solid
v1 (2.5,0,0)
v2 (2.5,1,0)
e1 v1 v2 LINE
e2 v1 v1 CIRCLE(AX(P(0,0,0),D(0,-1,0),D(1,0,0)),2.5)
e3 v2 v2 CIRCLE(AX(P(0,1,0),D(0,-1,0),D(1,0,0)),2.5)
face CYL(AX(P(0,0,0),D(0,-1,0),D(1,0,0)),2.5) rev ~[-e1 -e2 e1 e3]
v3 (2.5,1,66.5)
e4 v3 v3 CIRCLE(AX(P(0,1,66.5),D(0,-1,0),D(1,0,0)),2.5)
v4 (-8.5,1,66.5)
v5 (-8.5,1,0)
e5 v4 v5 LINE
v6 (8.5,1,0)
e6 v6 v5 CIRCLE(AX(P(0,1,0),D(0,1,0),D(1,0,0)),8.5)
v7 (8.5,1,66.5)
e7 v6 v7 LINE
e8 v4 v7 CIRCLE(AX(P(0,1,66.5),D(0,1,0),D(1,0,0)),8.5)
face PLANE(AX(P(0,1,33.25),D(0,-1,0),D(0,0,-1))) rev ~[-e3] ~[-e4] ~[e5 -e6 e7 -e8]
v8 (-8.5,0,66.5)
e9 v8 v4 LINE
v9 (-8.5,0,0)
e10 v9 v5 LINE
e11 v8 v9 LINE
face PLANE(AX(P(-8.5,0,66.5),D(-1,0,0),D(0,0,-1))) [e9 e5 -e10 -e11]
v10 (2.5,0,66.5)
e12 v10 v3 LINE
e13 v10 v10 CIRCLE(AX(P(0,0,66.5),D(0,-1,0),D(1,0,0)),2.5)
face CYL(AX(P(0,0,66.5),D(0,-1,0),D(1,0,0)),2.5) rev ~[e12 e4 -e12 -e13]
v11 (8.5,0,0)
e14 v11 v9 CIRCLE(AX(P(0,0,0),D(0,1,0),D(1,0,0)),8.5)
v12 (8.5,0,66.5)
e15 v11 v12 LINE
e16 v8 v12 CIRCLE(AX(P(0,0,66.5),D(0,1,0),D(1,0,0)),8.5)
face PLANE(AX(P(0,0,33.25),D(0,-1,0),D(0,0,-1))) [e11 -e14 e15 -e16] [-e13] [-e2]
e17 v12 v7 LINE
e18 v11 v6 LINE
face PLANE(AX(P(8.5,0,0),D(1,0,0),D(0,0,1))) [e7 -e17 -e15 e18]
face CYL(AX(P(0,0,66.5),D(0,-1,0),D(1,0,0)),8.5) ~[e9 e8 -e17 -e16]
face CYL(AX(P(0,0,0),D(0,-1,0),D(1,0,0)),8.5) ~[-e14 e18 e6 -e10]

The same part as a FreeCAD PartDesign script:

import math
import FreeCAD as App
import Part
import Sketcher
from FreeCAD import Vector

doc = App.newDocument("Part")
body = doc.addObject("PartDesign::Body", "Body")

# Sketch on XZ plane
sketch1 = body.newObject("Sketcher::SketchObject", "Sketch")
sketch1.AttachmentSupport = (doc.getObject("XZ_Plane"), [""])
sketch1.MapMode = "FlatFace"
sketch1.addGeometry(Part.ArcOfCircle(Part.Circle(Vector(0, 0, 0), Vector(0, 0, 1), 8.5), math.radians(180), math.radians(360)), False)
sketch1.addGeometry(Part.LineSegment(Vector(8.5, 0, 0), Vector(8.5, 66.5, 0)), False)
sketch1.addGeometry(Part.ArcOfCircle(Part.Circle(Vector(0, 66.5, 0), Vector(0, 0, 1), 8.5), math.radians(0), math.radians(180)), False)
sketch1.addGeometry(Part.LineSegment(Vector(-8.5, 66.5, 0), Vector(-8.5, 0, 0)), False)
sketch1.addGeometry(Part.Circle(Vector(0, 0, 0), Vector(0, 0, 1), 2.5), False)
sketch1.addGeometry(Part.Circle(Vector(0, 66.5, 0), Vector(0, 0, 1), 2.5), False)
sketch1.addConstraint(Sketcher.Constraint("Tangent", 0, 2, 1, 1))
sketch1.addConstraint(Sketcher.Constraint("Tangent", 1, 2, 2, 1))
sketch1.addConstraint(Sketcher.Constraint("Tangent", 2, 2, 3, 1))
sketch1.addConstraint(Sketcher.Constraint("Tangent", 3, 2, 0, 1))
sketch1.addConstraint(Sketcher.Constraint("Vertical", 1))
sketch1.addConstraint(Sketcher.Constraint("Vertical", 3))
sketch1.addConstraint(Sketcher.Constraint("Coincident", 0, 3, -1, 1))
sketch1.addConstraint(Sketcher.Constraint("Coincident", 4, 3, -1, 1))
sketch1.addConstraint(Sketcher.Constraint("Coincident", 5, 3, 2, 3))
sketch1.addConstraint(Sketcher.Constraint("Equal", 4, 5))
sketch1.addConstraint(Sketcher.Constraint("Diameter", 4, 5.0))
sketch1.addConstraint(Sketcher.Constraint("Radius", 0, 8.5))
sketch1.addConstraint(Sketcher.Constraint("DistanceY", 1, 1, 1, 2, 66.5))
pad1 = body.newObject("PartDesign::Pad", "Pad")
pad1.Profile = sketch1
pad1.Length = 1
pad1.Reversed = True

doc.recompute()
